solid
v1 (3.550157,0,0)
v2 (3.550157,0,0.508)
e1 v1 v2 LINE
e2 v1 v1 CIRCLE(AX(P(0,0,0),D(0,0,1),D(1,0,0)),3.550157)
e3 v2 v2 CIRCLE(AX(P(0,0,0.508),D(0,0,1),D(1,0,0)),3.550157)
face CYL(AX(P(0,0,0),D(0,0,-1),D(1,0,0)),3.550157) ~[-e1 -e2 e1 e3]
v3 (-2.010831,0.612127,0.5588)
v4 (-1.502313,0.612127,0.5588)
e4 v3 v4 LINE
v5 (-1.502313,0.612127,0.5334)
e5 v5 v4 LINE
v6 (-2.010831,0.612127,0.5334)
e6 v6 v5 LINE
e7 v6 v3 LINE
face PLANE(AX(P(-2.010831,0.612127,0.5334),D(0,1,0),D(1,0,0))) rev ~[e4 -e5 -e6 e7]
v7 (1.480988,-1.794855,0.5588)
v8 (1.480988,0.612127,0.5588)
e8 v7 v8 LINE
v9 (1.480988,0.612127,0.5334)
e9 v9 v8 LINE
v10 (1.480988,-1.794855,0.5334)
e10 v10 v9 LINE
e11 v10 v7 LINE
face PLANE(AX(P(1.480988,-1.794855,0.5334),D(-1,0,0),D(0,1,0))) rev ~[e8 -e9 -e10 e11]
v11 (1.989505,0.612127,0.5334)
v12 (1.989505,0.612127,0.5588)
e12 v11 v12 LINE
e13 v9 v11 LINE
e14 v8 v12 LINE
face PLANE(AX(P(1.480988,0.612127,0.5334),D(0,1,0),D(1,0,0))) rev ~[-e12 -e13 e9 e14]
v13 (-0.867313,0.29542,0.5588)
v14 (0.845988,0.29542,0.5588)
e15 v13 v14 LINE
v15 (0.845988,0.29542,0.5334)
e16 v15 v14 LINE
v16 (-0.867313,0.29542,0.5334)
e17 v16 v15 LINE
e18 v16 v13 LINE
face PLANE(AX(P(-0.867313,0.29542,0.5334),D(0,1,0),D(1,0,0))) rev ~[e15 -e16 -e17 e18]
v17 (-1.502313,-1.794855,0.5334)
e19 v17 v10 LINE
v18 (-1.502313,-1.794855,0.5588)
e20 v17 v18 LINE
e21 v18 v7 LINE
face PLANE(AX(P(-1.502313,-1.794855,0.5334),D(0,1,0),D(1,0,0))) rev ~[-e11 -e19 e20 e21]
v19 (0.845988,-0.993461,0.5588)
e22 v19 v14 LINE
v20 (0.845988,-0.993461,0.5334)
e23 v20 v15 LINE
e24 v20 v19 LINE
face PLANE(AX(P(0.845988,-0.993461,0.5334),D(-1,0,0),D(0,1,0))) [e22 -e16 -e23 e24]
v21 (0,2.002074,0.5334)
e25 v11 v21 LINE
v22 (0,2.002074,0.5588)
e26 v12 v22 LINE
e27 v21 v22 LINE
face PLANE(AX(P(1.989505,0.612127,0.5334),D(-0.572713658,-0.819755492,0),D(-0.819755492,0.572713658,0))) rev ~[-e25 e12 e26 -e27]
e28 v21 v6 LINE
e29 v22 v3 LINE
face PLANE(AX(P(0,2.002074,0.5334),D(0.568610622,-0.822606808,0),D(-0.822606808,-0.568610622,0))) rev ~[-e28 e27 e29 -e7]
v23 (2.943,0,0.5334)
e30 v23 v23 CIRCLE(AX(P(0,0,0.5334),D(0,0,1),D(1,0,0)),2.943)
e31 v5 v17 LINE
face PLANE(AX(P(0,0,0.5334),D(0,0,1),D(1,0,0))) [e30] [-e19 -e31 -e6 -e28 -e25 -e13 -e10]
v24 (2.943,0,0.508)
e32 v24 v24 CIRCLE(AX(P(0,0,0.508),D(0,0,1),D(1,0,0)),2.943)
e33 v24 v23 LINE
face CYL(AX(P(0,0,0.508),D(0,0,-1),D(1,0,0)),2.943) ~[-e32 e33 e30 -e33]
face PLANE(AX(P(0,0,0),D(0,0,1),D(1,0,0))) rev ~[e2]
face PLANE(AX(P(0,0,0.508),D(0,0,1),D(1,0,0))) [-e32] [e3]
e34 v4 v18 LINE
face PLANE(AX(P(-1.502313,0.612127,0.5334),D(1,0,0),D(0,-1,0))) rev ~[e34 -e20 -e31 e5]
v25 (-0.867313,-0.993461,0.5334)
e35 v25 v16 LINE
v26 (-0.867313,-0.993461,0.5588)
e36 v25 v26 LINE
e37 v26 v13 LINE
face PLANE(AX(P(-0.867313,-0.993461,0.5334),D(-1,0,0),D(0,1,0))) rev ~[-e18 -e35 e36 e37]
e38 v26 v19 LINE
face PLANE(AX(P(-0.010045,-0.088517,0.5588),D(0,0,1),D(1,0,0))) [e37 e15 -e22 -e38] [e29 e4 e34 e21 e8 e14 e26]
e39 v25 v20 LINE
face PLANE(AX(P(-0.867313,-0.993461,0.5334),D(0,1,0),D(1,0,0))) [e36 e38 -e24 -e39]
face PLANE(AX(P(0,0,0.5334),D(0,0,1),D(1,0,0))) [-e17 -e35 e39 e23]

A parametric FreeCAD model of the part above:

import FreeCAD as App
import Part
import Sketcher
Q = App.Units.Quantity


def add_polygon(sketch, points):
    """Adds a closed chain of lines whose ends are joined by coincident constraints."""
    first, n = sketch.GeometryCount, len(points)
    for a, b in zip(points, points[1:] + points[:1]):
        sketch.addGeometry(Part.LineSegment(App.Vector(*a, 0), App.Vector(*b, 0)), False)
    for i in range(n):
        sketch.addConstraint(Sketcher.Constraint("Coincident", first + i, 2, first + (i + 1) % n, 1))

doc = App.newDocument("Part")
body = doc.addObject("PartDesign::Body", "Body")

# Sketch on XY plane
sketch1 = body.newObject("Sketcher::SketchObject", "Sketch")
sketch1.AttachmentSupport = (doc.getObject("XY_Plane"), [""])
sketch1.MapMode = "FlatFace"
sketch1.addGeometry(Part.Circle(App.Vector(0, 0, 0), App.Vector(0, 0, 1), 3.6), False)
sketch1.addConstraint(Sketcher.Constraint("Coincident", 0, 3, -1, 1))
sketch1.addConstraint(Sketcher.Constraint("Diameter", 0, 7.100314))
pad1 = body.newObject("PartDesign::Pad", "Pad")
pad1.Profile = sketch1
pad1.Length = Q("0.02 in")

# Sketch on XY plane
sketch2 = body.newObject("Sketcher::SketchObject", "Sketch001")
sketch2.AttachmentSupport = (doc.getObject("XY_Plane"), [""])
sketch2.MapMode = "FlatFace"
sketch2.AttachmentOffset = App.Placement(App.Vector(0, 0, 0.02 * 25.4), App.Rotation())
sketch2.addGeometry(Part.Circle(App.Vector(0, 0, 0), App.Vector(0, 0, 1), 2.9), False)
sketch2.addConstraint(Sketcher.Constraint("Coincident", 0, 3, -1, 1))
sketch2.addConstraint(Sketcher.Constraint("Diameter", 0, 5.886))
pad2 = body.newObject("PartDesign::Pad", "Pad001")
pad2.Profile = sketch2
pad2.Length = Q("0.001 in")

# Sketch on XY plane
sketch3 = body.newObject("Sketcher::SketchObject", "Sketch002")
sketch3.AttachmentSupport = (doc.getObject("XY_Plane"), [""])
sketch3.MapMode = "FlatFace"
sketch3.AttachmentOffset = App.Placement(App.Vector(0, 0, 0.021 * 25.4), App.Rotation())
add_polygon(sketch3, [(-1.5, -1.8), (1.5, -1.8), (1.5, 0.6), (2, 0.6), (0, 2), (-2, 0.6), (-1.5, 0.6)])  # lines 0-6
add_polygon(sketch3, [(0.8, -1), (-0.9, -1), (-0.9, 0.3), (0.8, 0.3)])  # lines 7-10
sketch3.addConstraint(Sketcher.Constraint("Horizontal", 0))
sketch3.addConstraint(Sketcher.Constraint("Vertical", 1))
sketch3.addConstraint(Sketcher.Constraint("Horizontal", 2))
sketch3.addConstraint(Sketcher.Constraint("Horizontal", 5))
sketch3.addConstraint(Sketcher.Constraint("Vertical", 6))
sketch3.addConstraint(Sketcher.Constraint("Horizontal", 7))
sketch3.addConstraint(Sketcher.Constraint("Vertical", 8))
sketch3.addConstraint(Sketcher.Constraint("Horizontal", 9))
sketch3.addConstraint(Sketcher.Constraint("Vertical", 10))
sketch3.addConstraint(Sketcher.Constraint("PointOnObject", 3, 2, -2))
sketch3.addConstraint(Sketcher.Constraint("Horizontal", 2, 2, 4, 2))
sketch3.addConstraint(Sketcher.Constraint("Equal", 2, 5))
sketch3.addConstraint(Sketcher.Constraint("DistanceX", 6, 2, 7, 2, Q("0.025 in")))
sketch3.addConstraint(Sketcher.Constraint("DistanceX", 9, 2, 1, 2, Q("0.025 in")))
sketch3.addConstraint(Sketcher.Constraint("DistanceX", 0, 1, 0, 2, 2.983301))
sketch3.addConstraint(Sketcher.Constraint("DistanceX", 5, 1, 5, 2, 0.508518))
sketch3.addConstraint(Sketcher.Constraint("DistanceY", 8, 1, 8, 2, 1.288881))
sketch3.addConstraint(Sketcher.Constraint("Distance", 3, 2.426949))
sketch3.addConstraint(Sketcher.Constraint("Distance", 4, 2.444462))
sketch3.addConstraint(Sketcher.Constraint("DistanceY", 1, 1, 1, 2, 2.406982))
sketch3.addConstraint(Sketcher.Constraint("DistanceY", 7, 2, -1, 1, 0.993461))
sketch3.addConstraint(Sketcher.Constraint("DistanceY", 7, 2, 5, 2, 1.605589))
pad3 = body.newObject("PartDesign::Pad", "Pad002")
pad3.Profile = sketch3
pad3.Length = Q("0.001 in")

doc.recompute()
